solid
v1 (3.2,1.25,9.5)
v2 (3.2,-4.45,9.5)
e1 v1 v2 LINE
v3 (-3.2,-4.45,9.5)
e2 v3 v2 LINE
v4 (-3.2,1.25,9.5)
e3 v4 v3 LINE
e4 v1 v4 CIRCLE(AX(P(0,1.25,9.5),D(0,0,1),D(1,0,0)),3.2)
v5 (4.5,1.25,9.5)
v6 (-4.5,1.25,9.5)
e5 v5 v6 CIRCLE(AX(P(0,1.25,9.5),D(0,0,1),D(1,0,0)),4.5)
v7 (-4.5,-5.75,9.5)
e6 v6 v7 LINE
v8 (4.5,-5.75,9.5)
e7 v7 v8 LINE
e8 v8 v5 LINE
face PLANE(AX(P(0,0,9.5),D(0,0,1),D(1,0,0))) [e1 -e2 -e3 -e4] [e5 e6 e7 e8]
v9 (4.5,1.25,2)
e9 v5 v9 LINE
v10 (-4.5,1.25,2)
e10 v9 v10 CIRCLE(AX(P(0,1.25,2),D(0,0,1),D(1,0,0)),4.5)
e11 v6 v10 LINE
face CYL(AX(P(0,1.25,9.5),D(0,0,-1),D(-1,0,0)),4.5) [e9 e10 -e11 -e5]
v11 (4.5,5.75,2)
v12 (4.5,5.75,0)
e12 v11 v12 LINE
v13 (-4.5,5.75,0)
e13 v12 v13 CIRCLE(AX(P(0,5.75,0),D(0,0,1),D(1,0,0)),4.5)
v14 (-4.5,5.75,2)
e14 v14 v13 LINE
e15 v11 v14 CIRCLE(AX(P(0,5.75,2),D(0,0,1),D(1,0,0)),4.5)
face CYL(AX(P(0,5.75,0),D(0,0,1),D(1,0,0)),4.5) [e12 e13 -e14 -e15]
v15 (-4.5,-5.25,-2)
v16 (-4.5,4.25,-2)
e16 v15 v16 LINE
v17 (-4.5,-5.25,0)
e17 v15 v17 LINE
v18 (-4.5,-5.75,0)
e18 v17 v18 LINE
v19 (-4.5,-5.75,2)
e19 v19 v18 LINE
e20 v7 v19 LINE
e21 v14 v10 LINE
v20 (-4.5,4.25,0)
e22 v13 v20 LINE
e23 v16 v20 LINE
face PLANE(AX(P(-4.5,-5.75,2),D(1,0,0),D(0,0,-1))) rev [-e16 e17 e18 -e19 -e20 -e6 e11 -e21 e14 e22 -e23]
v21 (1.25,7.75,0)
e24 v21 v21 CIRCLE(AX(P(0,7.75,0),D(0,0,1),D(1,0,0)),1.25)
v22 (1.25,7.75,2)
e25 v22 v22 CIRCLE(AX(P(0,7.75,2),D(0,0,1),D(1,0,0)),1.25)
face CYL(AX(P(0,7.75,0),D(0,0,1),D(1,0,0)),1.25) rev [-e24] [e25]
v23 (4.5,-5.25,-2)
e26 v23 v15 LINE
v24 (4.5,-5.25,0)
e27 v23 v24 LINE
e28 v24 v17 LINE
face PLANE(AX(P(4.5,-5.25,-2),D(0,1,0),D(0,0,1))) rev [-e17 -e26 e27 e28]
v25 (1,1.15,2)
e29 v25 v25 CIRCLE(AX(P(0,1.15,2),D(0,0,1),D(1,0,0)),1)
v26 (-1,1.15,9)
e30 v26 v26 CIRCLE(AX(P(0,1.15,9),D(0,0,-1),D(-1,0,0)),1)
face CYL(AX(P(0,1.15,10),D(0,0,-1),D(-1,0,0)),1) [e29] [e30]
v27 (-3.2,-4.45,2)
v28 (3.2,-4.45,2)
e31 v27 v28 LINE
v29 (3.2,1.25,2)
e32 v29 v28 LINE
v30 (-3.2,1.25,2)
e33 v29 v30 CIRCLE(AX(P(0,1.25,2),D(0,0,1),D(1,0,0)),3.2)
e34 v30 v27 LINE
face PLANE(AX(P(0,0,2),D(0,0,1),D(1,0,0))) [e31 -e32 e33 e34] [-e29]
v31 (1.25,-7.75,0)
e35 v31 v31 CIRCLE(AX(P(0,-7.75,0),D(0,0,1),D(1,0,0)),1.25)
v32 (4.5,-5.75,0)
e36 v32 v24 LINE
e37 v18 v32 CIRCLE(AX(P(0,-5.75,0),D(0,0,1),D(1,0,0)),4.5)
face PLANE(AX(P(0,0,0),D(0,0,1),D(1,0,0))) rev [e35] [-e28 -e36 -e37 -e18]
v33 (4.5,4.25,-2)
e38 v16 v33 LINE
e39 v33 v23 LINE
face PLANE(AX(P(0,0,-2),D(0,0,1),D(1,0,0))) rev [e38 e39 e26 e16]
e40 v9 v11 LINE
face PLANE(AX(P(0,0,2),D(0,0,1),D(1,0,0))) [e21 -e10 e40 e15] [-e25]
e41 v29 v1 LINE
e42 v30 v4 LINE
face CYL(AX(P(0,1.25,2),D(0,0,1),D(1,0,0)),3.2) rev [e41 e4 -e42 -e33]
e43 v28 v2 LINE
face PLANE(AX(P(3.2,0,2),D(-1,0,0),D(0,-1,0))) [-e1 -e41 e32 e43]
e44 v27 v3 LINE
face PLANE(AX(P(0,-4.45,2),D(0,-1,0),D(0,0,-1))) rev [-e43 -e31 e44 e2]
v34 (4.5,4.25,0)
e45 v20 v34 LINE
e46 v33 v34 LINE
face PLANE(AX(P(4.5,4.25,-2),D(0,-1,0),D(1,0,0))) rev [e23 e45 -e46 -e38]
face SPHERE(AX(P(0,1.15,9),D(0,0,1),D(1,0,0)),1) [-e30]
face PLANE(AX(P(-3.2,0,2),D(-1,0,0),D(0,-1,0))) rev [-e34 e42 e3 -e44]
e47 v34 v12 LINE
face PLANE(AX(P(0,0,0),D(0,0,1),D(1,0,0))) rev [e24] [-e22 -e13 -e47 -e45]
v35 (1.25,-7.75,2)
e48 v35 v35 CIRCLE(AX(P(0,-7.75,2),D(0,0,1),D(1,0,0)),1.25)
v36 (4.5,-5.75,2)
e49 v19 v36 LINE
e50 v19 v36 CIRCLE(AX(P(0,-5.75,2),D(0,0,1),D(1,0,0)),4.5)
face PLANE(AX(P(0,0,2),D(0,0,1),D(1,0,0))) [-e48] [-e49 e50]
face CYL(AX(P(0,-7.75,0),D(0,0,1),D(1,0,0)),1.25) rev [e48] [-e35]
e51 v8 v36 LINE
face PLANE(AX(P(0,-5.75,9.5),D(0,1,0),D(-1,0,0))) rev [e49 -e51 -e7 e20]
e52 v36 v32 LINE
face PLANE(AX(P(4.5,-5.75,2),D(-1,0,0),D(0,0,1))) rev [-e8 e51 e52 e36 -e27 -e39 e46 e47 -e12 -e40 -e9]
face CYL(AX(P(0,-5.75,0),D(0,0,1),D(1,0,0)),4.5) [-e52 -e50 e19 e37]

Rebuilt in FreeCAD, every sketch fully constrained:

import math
import FreeCAD as App
import Part
import Sketcher

V = App.Vector


def edges_at(feature, points):
    """Names of the edges that pass closest to the given points."""
    edges = feature.Shape.Edges
    near = lambda p: min(range(len(edges)), key=lambda i: edges[i].distToShape(Part.Vertex(*p))[0])
    return sorted({f"Edge{near(p) + 1}" for p in points})

doc = App.newDocument("Part")
body = doc.addObject("PartDesign::Body", "Body")

# Sketch on XY plane
sketch1 = body.newObject("Sketcher::SketchObject", "Sketch")
sketch1.AttachmentSupport = (doc.getObject("XY_Plane"), [""])
sketch1.MapMode = "FlatFace"
sketch1.addGeometry(Part.LineSegment(V(-4, 6, 0), V(-4, -6, 0)), False)
sketch1.addGeometry(Part.LineSegment(V(-4, -6, 0), V(4, -6, 0)), False)
sketch1.addGeometry(Part.LineSegment(V(4, -6, 0), V(4, 6, 0)), False)
sketch1.addGeometry(Part.LineSegment(V(4, 6, 0), V(-4, 6, 0)), False)
sketch1.addConstraint(Sketcher.Constraint("Coincident", 0, 2, 1, 1))
sketch1.addConstraint(Sketcher.Constraint("Coincident", 1, 2, 2, 1))
sketch1.addConstraint(Sketcher.Constraint("Coincident", 2, 2, 3, 1))
sketch1.addConstraint(Sketcher.Constraint("Coincident", 3, 2, 0, 1))
sketch1.addConstraint(Sketcher.Constraint("Vertical", 0))
sketch1.addConstraint(Sketcher.Constraint("Horizontal", 1))
sketch1.addConstraint(Sketcher.Constraint("Vertical", 2))
sketch1.addConstraint(Sketcher.Constraint("Horizontal", 3))
sketch1.addConstraint(Sketcher.Constraint("Symmetric", 0, 2, 2, 2, -1, 1))
sketch1.addConstraint(Sketcher.Constraint("DistanceX", 1, 1, 1, 2, 9.0))
sketch1.addConstraint(Sketcher.Constraint("DistanceY", 0, 2, 0, 1, 11.5))
pad1 = body.newObject("PartDesign::Pad", "Pad")
pad1.Profile = sketch1
pad1.Length = 2

# Sketch on XY plane
sketch2 = body.newObject("Sketcher::SketchObject", "Sketch001")
sketch2.AttachmentSupport = (doc.getObject("XY_Plane"), [""])
sketch2.MapMode = "FlatFace"
sketch2.AttachmentOffset = App.Placement(V(0, 0, 2), App.Rotation())
sketch2.addGeometry(Part.Circle(V(0, 5.8, 0), V(0, 0, 1), 4.5), False)
sketch2.addGeometry(Part.Circle(V(0, -5.8, 0), V(0, 0, 1), 4.5), False)
sketch2.addConstraint(Sketcher.Constraint("Equal", 0, 1))
sketch2.addConstraint(Sketcher.Constraint("Symmetric", 0, 3, 1, 3, -1, 1))
sketch2.addConstraint(Sketcher.Constraint("PointOnObject", 0, 3, -2))
sketch2.addConstraint(Sketcher.Constraint("Diameter", 0, 9.0))
sketch2.addConstraint(Sketcher.Constraint("DistanceY", 1, 3, 0, 3, 11.5))
pad2 = body.newObject("PartDesign::Pad", "Pad001")
pad2.Profile = sketch2
pad2.Length = 2
pad2.Reversed = True

# Sketch on XY plane
sketch3 = body.newObject("Sketcher::SketchObject", "Sketch002")
sketch3.AttachmentSupport = (doc.getObject("XY_Plane"), [""])
sketch3.MapMode = "FlatFace"
sketch3.AttachmentOffset = App.Placement(V(0, 0, 2), App.Rotation())
sketch3.addGeometry(Part.Circle(V(0, -7.8, 0), V(0, 0, 1), 1.2), False)
sketch3.addGeometry(Part.Circle(V(0, 7.8, 0), V(0, 0, 1), 1.2), False)
sketch3.addConstraint(Sketcher.Constraint("Equal", 0, 1))
sketch3.addConstraint(Sketcher.Constraint("Symmetric", 0, 3, 1, 3, -1, 1))
sketch3.addConstraint(Sketcher.Constraint("PointOnObject", 0, 3, -2))
sketch3.addConstraint(Sketcher.Constraint("Diameter", 0, 2.5))
sketch3.addConstraint(Sketcher.Constraint("DistanceY", 0, 3, 1, 3, 15.5))
pocket1 = body.newObject("PartDesign::Pocket", "Pocket")
pocket1.Profile = sketch3
pocket1.Length = 2

# Sketch on XY plane
sketch4 = body.newObject("Sketcher::SketchObject", "Sketch003")
sketch4.AttachmentSupport = (doc.getObject("XY_Plane"), [""])
sketch4.MapMode = "FlatFace"
sketch4.AttachmentOffset = App.Placement(V(0, 0, 2), App.Rotation())
sketch4.addGeometry(Part.ArcOfCircle(Part.Circle(V(0, 1.2, 0), V(0, 0, 1), 4.5), math.radians(0), math.radians(180)), False)
sketch4.addGeometry(Part.LineSegment(V(-4.5, 1.2, 0), V(-4.5, -5.8, 0)), False)
sketch4.addGeometry(Part.LineSegment(V(-4.5, -5.8, 0), V(4.5, -5.8, 0)), False)
sketch4.addGeometry(Part.LineSegment(V(4.5, -5.8, 0), V(4.5, 1.2, 0)), False)
sketch4.addConstraint(Sketcher.Constraint("Tangent", 0, 2, 1, 1))
sketch4.addConstraint(Sketcher.Constraint("Coincident", 1, 2, 2, 1))
sketch4.addConstraint(Sketcher.Constraint("Coincident", 2, 2, 3, 1))
sketch4.addConstraint(Sketcher.Constraint("Tangent", 3, 2, 0, 1))
sketch4.addConstraint(Sketcher.Constraint("Vertical", 1))
sketch4.addConstraint(Sketcher.Constraint("Horizontal", 2))
sketch4.addConstraint(Sketcher.Constraint("Vertical", 3))
sketch4.addConstraint(Sketcher.Constraint("PointOnObject", 0, 3, -2))
sketch4.addConstraint(Sketcher.Constraint("Radius", 0, 4.5))
sketch4.addConstraint(Sketcher.Constraint("DistanceY", 1, 2, 1, 1, 7.0))
sketch4.addConstraint(Sketcher.Constraint("DistanceY", -1, 1, 0, 3, 1.25))
pad3 = body.newObject("PartDesign::Pad", "Pad002")
pad3.Profile = sketch4
pad3.Length = 7.5

# Sketch on XY plane
sketch5 = body.newObject("Sketcher::SketchObject", "Sketch004")
sketch5.AttachmentSupport = (doc.getObject("XY_Plane"), [""])
sketch5.MapMode = "FlatFace"
sketch5.AttachmentOffset = App.Placement(V(0, 0, 9.5), App.Rotation())
sketch5.addGeometry(Part.ArcOfCircle(Part.Circle(V(0, 1.2, 0), V(0, 0, 1), 3.2), math.radians(0), math.radians(180)), False)
sketch5.addGeometry(Part.LineSegment(V(-3.2, 1.2, 0), V(-3.2, -4.5, 0)), False)
sketch5.addGeometry(Part.LineSegment(V(-3.2, -4.5, 0), V(3.2, -4.5, 0)), False)
sketch5.addGeometry(Part.LineSegment(V(3.2, -4.5, 0), V(3.2, 1.2, 0)), False)
sketch5.addConstraint(Sketcher.Constraint("Tangent", 0, 2, 1, 1))
sketch5.addConstraint(Sketcher.Constraint("Coincident", 1, 2, 2, 1))
sketch5.addConstraint(Sketcher.Constraint("Coincident", 2, 2, 3, 1))
sketch5.addConstraint(Sketcher.Constraint("Tangent", 3, 2, 0, 1))
sketch5.addConstraint(Sketcher.Constraint("Vertical", 1))
sketch5.addConstraint(Sketcher.Constraint("Horizontal", 2))
sketch5.addConstraint(Sketcher.Constraint("Vertical", 3))
sketch5.addConstraint(Sketcher.Constraint("PointOnObject", 0, 3, -2))
sketch5.addConstraint(Sketcher.Constraint("Radius", 0, 3.2))
sketch5.addConstraint(Sketcher.Constraint("DistanceY", 1, 2, 1, 1, 5.7))
sketch5.addConstraint(Sketcher.Constraint("DistanceY", -1, 1, 0, 3, 1.25))
pocket2 = body.newObject("PartDesign::Pocket", "Pocket001")
pocket2.Profile = sketch5
pocket2.Length = 7.5

# Sketch on XY plane
sketch6 = body.newObject("Sketcher::SketchObject", "Sketch005")
sketch6.AttachmentSupport = (doc.getObject("XY_Plane"), [""])
sketch6.MapMode = "FlatFace"
sketch6.AttachmentOffset = App.Placement(V(0, 0, 2), App.Rotation())
sketch6.addGeometry(Part.Circle(V(0, 1.1, 0), V(0, 0, 1), 1), False)
sketch6.addConstraint(Sketcher.Constraint("PointOnObject", 0, 3, -2))
sketch6.addConstraint(Sketcher.Constraint("Diameter", 0, 2.0))
sketch6.addConstraint(Sketcher.Constraint("DistanceY", -1, 1, 0, 3, 1.15))
pad4 = body.newObject("PartDesign::Pad", "Pad003")
pad4.Profile = sketch6
pad4.Length = 8
doc.recompute()

fillet = body.newObject("PartDesign::Fillet", "Fillet")
fillet.Base = (pad4, edges_at(pad4, [(-1, 1.15, 10)]))
fillet.Radius = 1

# Sketch on XY plane
sketch7 = body.newObject("Sketcher::SketchObject", "Sketch006")
sketch7.AttachmentSupport = (doc.getObject("XY_Plane"), [""])
sketch7.MapMode = "FlatFace"
sketch7.addGeometry(Part.LineSegment(V(4, 4, 0), V(4, -5, 0)), False)
sketch7.addGeometry(Part.LineSegment(V(4, -5, 0), V(-4, -5, 0)), False)
sketch7.addGeometry(Part.LineSegment(V(-4, -5, 0), V(-4, 4, 0)), False)
sketch7.addGeometry(Part.LineSegment(V(-4, 4, 0), V(4, 4, 0)), False)
sketch7.addConstraint(Sketcher.Constraint("Coincident", 0, 2, 1, 1))
sketch7.addConstraint(Sketcher.Constraint("Coincident", 1, 2, 2, 1))
sketch7.addConstraint(Sketcher.Constraint("Coincident", 2, 2, 3, 1))
sketch7.addConstraint(Sketcher.Constraint("Coincident", 3, 2, 0, 1))
sketch7.addConstraint(Sketcher.Constraint("Vertical", 0))
sketch7.addConstraint(Sketcher.Constraint("Horizontal", 1))
sketch7.addConstraint(Sketcher.Constraint("Vertical", 2))
sketch7.addConstraint(Sketcher.Constraint("Horizontal", 3))
sketch7.addConstraint(Sketcher.Constraint("DistanceX", 1, 2, 1, 1, 9.0))
sketch7.addConstraint(Sketcher.Constraint("DistanceY", 0, 2, 0, 1, 9.5))
sketch7.addConstraint(Sketcher.Constraint("DistanceX", -1, 1, 0, 2, 4.5))
sketch7.addConstraint(Sketcher.Constraint("DistanceY", 0, 2, -1, 1, 5.25))
pad5 = body.newObject("PartDesign::Pad", "Pad004")
pad5.Profile = sketch7
pad5.Length = 2
pad5.Reversed = True

doc.recompute()
